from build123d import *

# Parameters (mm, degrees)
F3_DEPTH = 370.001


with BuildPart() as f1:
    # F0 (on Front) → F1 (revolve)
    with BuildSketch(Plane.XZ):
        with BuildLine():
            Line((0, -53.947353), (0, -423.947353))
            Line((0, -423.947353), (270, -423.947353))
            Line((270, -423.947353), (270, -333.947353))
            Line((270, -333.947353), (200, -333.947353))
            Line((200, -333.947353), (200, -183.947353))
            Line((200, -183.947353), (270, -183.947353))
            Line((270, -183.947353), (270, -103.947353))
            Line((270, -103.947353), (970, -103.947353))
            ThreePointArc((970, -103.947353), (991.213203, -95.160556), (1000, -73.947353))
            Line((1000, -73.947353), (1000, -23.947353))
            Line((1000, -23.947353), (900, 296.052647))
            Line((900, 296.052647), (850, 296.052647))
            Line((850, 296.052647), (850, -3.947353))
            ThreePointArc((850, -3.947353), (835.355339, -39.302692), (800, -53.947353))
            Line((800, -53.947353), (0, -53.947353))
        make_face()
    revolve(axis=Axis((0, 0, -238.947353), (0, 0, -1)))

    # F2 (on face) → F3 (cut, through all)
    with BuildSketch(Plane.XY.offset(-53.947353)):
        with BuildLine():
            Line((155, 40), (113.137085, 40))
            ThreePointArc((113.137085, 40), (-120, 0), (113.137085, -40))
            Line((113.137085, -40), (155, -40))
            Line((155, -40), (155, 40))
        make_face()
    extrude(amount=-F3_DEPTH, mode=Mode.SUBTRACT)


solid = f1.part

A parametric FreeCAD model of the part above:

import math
import FreeCAD as App
import Part
import Sketcher
from FreeCAD import Vector

doc = App.newDocument("Part")
body = doc.addObject("PartDesign::Body", "Body")

sketch1 = doc.addObject("Sketcher::SketchObject", "Sketch")
body.addObject(sketch1)
sketch1.AttachmentSupport = (doc.XZ_Plane, [""])
sketch1.MapMode = "FlatFace"
sketch1.addGeometry(Part.LineSegment(Vector(0, -54, 0), Vector(0, -424, 0)), False)
sketch1.addGeometry(Part.LineSegment(Vector(0, -424, 0), Vector(270, -424, 0)), False)
sketch1.addGeometry(Part.LineSegment(Vector(270, -424, 0), Vector(270, -334, 0)), False)
sketch1.addGeometry(Part.LineSegment(Vector(270, -334, 0), Vector(200, -334, 0)), False)
sketch1.addGeometry(Part.LineSegment(Vector(200, -334, 0), Vector(200, -184, 0)), False)
sketch1.addGeometry(Part.LineSegment(Vector(200, -184, 0), Vector(270, -184, 0)), False)
sketch1.addGeometry(Part.LineSegment(Vector(270, -184, 0), Vector(270, -104, 0)), False)
sketch1.addGeometry(Part.LineSegment(Vector(270, -104, 0), Vector(970, -104, 0)), False)
sketch1.addGeometry(Part.ArcOfCircle(Part.Circle(Vector(970, -74, 0), Vector(0, 0, 1), 30), math.radians(-90), math.radians(0)), False)
sketch1.addGeometry(Part.LineSegment(Vector(1000, -74, 0), Vector(1000, -24, 0)), False)
sketch1.addGeometry(Part.LineSegment(Vector(1000, -24, 0), Vector(900, 296, 0)), False)
sketch1.addGeometry(Part.LineSegment(Vector(900, 296, 0), Vector(850, 296, 0)), False)
sketch1.addGeometry(Part.LineSegment(Vector(850, 296, 0), Vector(850, -4, 0)), False)
sketch1.addGeometry(Part.ArcOfCircle(Part.Circle(Vector(800, -4, 0), Vector(0, 0, 1), 50), math.radians(-90), math.radians(0)), False)
sketch1.addGeometry(Part.LineSegment(Vector(800, -54, 0), Vector(0, -54, 0)), False)
sketch1.addConstraint(Sketcher.Constraint("Coincident", 0, 2, 1, 1))
sketch1.addConstraint(Sketcher.Constraint("Coincident", 1, 2, 2, 1))
sketch1.addConstraint(Sketcher.Constraint("Coincident", 2, 2, 3, 1))
sketch1.addConstraint(Sketcher.Constraint("Coincident", 3, 2, 4, 1))
sketch1.addConstraint(Sketcher.Constraint("Coincident", 4, 2, 5, 1))
sketch1.addConstraint(Sketcher.Constraint("Coincident", 5, 2, 6, 1))
sketch1.addConstraint(Sketcher.Constraint("Coincident", 6, 2, 7, 1))
sketch1.addConstraint(Sketcher.Constraint("Tangent", 7, 2, 8, 1))
sketch1.addConstraint(Sketcher.Constraint("Tangent", 8, 2, 9, 1))
sketch1.addConstraint(Sketcher.Constraint("Coincident", 9, 2, 10, 1))
sketch1.addConstraint(Sketcher.Constraint("Coincident", 10, 2, 11, 1))
sketch1.addConstraint(Sketcher.Constraint("Coincident", 11, 2, 12, 1))
sketch1.addConstraint(Sketcher.Constraint("Tangent", 12, 2, 13, 2))
sketch1.addConstraint(Sketcher.Constraint("Tangent", 13, 1, 14, 1))
sketch1.addConstraint(Sketcher.Constraint("Coincident", 14, 2, 0, 1))
sketch1.addConstraint(Sketcher.Constraint("Vertical", 0))
sketch1.addConstraint(Sketcher.Constraint("Horizontal", 1))
sketch1.addConstraint(Sketcher.Constraint("Vertical", 2))
sketch1.addConstraint(Sketcher.Constraint("Horizontal", 3))
sketch1.addConstraint(Sketcher.Constraint("Vertical", 4))
sketch1.addConstraint(Sketcher.Constraint("Horizontal", 5))
sketch1.addConstraint(Sketcher.Constraint("Vertical", 6))
sketch1.addConstraint(Sketcher.Constraint("Horizontal", 7))
sketch1.addConstraint(Sketcher.Constraint("Vertical", 9))
sketch1.addConstraint(Sketcher.Constraint("Horizontal", 11))
sketch1.addConstraint(Sketcher.Constraint("Vertical", 12))
sketch1.addConstraint(Sketcher.Constraint("Horizontal", 14))
sketch1.addConstraint(Sketcher.Constraint("PointOnObject", 0, 2, -2))
sketch1.addConstraint(Sketcher.Constraint("Vertical", 2, 2, 5, 2))
sketch1.addConstraint(Sketcher.Constraint("Equal", 11, 9))
sketch1.addConstraint(Sketcher.Constraint("Radius", 8, 30.000001))
sketch1.addConstraint(Sketcher.Constraint("Radius", 13, 50.0))
sketch1.addConstraint(Sketcher.Constraint("DistanceX", 1, 1, 1, 2, 270.0))
sketch1.addConstraint(Sketcher.Constraint("DistanceX", 3, 2, 3, 1, 70.0))
sketch1.addConstraint(Sketcher.Constraint("DistanceX", 7, 1, 7, 2, 700.0))
sketch1.addConstraint(Sketcher.Constraint("DistanceX", 11, 2, 11, 1, 50.0))
sketch1.addConstraint(Sketcher.Constraint("DistanceX", 14, 2, 14, 1, 800.0))
sketch1.addConstraint(Sketcher.Constraint("DistanceY", 0, 2, 0, 1, 370.0))
sketch1.addConstraint(Sketcher.Constraint("DistanceY", 2, 1, 2, 2, 90.0))
sketch1.addConstraint(Sketcher.Constraint("DistanceY", 4, 1, 4, 2, 150.0))
sketch1.addConstraint(Sketcher.Constraint("DistanceY", 6, 1, 6, 2, 80.0))
sketch1.addConstraint(Sketcher.Constraint("DistanceY", 12, 2, 12, 1, 300.0))
sketch1.addConstraint(Sketcher.Constraint("DistanceY", 8, 3, -1, 1, 73.947352))
revolution = doc.addObject("PartDesign::Revolution", "Revolution")
body.addObject(revolution)
revolution.Profile = sketch1
revolution.ReferenceAxis = (sketch1, ["V_Axis"])
revolution.Angle = 360

sketch2 = doc.addObject("Sketcher::SketchObject", "Sketch001")
body.addObject(sketch2)
sketch2.AttachmentSupport = (doc.XY_Plane, [""])
sketch2.MapMode = "FlatFace"
sketch2.AttachmentOffset = App.Placement(Vector(0, 0, -53.947353), App.Rotation())
sketch2.addGeometry(Part.LineSegment(Vector(155, 40, 0), Vector(113, 40, 0)), False)
sketch2.addGeometry(Part.ArcOfCircle(Part.Circle(Vector(0, 0, 0), Vector(0, 0, 1), 120), math.radians(19), math.radians(341)), False)
sketch2.addGeometry(Part.LineSegment(Vector(113, -40, 0), Vector(155, -40, 0)), False)
sketch2.addGeometry(Part.LineSegment(Vector(155, -40, 0), Vector(155, 40, 0)), False)
sketch2.addConstraint(Sketcher.Constraint("Coincident", 0, 2, 1, 1))
sketch2.addConstraint(Sketcher.Constraint("Coincident", 1, 2, 2, 1))
sketch2.addConstraint(Sketcher.Constraint("Coincident", 2, 2, 3, 1))
sketch2.addConstraint(Sketcher.Constraint("Coincident", 3, 2, 0, 1))
sketch2.addConstraint(Sketcher.Constraint("Horizontal", 0))
sketch2.addConstraint(Sketcher.Constraint("Horizontal", 2))
sketch2.addConstraint(Sketcher.Constraint("Vertical", 3))
sketch2.addConstraint(Sketcher.Constraint("Coincident", 1, 3, -1, 1))
sketch2.addConstraint(Sketcher.Constraint("Vertical", 0, 2, 1, 2))
sketch2.addConstraint(Sketcher.Constraint("Radius", 1, 120.0))
sketch2.addConstraint(Sketcher.Constraint("DistanceY", 3, 1, 3, 2, 80.0))
sketch2.addConstraint(Sketcher.Constraint("DistanceX", -1, 1, 2, 2, 155.0))
pocket1 = doc.addObject("PartDesign::Pocket", "Pocket")
body.addObject(pocket1)
pocket1.Profile = sketch2
pocket1.Type = "ThroughAll"

doc.recompute()
